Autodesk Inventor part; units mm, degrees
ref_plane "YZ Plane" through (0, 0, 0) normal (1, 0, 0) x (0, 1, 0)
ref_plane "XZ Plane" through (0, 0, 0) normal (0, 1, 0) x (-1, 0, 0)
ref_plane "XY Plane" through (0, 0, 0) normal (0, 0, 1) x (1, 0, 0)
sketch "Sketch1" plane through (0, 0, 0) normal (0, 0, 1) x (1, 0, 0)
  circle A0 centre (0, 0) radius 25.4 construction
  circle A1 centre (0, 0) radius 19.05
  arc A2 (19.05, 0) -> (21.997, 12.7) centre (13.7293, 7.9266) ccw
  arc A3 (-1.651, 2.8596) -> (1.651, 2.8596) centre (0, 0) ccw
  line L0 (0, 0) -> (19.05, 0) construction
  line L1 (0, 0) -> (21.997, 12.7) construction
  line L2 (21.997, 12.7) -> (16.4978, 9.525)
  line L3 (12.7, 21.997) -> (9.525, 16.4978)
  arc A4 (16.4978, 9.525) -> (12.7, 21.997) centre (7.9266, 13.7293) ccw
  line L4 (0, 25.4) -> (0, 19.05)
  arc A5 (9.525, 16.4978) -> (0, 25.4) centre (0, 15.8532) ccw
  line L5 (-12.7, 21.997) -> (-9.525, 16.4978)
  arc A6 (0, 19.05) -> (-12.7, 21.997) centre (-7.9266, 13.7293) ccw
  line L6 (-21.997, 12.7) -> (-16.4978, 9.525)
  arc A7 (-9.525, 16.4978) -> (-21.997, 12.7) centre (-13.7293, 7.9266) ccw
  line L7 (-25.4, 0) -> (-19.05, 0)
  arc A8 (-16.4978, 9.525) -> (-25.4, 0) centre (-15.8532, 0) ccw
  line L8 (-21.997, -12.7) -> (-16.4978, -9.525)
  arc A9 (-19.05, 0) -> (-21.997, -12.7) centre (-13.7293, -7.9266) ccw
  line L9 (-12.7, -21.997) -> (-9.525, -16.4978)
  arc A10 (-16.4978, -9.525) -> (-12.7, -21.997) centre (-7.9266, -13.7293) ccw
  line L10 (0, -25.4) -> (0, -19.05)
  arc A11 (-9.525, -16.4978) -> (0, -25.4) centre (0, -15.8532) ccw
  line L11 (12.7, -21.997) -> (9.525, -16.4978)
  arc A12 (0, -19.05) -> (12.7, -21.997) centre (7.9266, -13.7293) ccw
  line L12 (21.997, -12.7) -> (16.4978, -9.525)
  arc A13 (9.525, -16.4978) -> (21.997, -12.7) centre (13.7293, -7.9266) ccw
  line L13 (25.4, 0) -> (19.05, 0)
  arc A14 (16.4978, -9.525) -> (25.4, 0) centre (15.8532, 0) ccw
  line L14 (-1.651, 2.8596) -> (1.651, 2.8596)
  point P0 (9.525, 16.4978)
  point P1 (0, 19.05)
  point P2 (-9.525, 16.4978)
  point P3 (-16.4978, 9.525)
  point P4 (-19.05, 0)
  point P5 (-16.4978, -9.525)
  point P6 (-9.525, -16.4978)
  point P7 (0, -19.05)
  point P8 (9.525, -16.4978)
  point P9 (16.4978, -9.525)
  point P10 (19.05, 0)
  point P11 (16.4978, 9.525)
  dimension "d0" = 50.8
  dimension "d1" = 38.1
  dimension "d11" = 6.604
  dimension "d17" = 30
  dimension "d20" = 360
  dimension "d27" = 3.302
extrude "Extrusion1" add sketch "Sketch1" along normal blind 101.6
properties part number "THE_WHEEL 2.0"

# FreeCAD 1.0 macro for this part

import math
import FreeCAD as App
import Part
import Sketcher

V = App.Vector
Q = App.Units.Quantity

doc = App.newDocument("Part")
body = doc.addObject("PartDesign::Body", "Body")

# Sketch on XY plane
sketch1 = body.newObject("Sketcher::SketchObject", "Sketch")
sketch1.AttachmentSupport = (doc.getObject("XY_Plane"), [""])
sketch1.MapMode = "FlatFace"
sketch1.addGeometry([
    Part.LineSegment(V(25.4, 0, 0), V(19.05, 0, 0)),  # 0
    Part.ArcOfCircle(Part.Circle(V(13.7293, 7.9266, 0), V(0, 0, 1), 9.546771), math.radians(-56.128664), math.radians(30.000214)),  # 1
    Part.LineSegment(V(21.997, 12.7, 0), V(16.4978, 9.525, 0)),  # 2
    Part.ArcOfCircle(Part.Circle(V(7.9266, 13.7293, 0), V(0, 0, 1), 9.546811), math.radians(-26.128632), math.radians(59.999786)),  # 3
    Part.LineSegment(V(12.7, 21.997, 0), V(9.525, 16.4978, 0)),  # 4
    Part.ArcOfCircle(Part.Circle(V(0, 15.8532, 0), V(0, 0, 1), 9.546787), math.radians(3.871562), math.radians(90)),  # 5
    Part.LineSegment(V(0, 25.4, 0), V(0, 19.05, 0)),  # 6
    Part.ArcOfCircle(Part.Circle(V(-7.9266, 13.7293, 0), V(0, 0, 1), 9.546771), math.radians(33.871336), math.radians(120.000214)),  # 7
    Part.LineSegment(V(-12.7, 21.997, 0), V(-9.525, 16.4978, 0)),  # 8
    Part.ArcOfCircle(Part.Circle(V(-13.7293, 7.9266, 0), V(0, 0, 1), 9.546811), math.radians(63.871368), math.radians(149.999786)),  # 9
    Part.LineSegment(V(-21.997, 12.7, 0), V(-16.4978, 9.525, 0)),  # 10
    Part.ArcOfCircle(Part.Circle(V(-15.8532, 0, 0), V(0, 0, 1), 9.546787), math.radians(93.871562), math.radians(180)),  # 11
    Part.LineSegment(V(-25.4, 0, 0), V(-19.05, 0, 0)),  # 12
    Part.ArcOfCircle(Part.Circle(V(-13.7293, -7.9266, 0), V(0, 0, 1), 9.546771), math.radians(123.871336), math.radians(210.000214)),  # 13
    Part.LineSegment(V(-21.997, -12.7, 0), V(-16.4978, -9.525, 0)),  # 14
    Part.ArcOfCircle(Part.Circle(V(-7.9266, -13.7293, 0), V(0, 0, 1), 9.546811), math.radians(153.871368), math.radians(239.999786)),  # 15
    Part.LineSegment(V(-12.7, -21.997, 0), V(-9.525, -16.4978, 0)),  # 16
    Part.ArcOfCircle(Part.Circle(V(0, -15.8532, 0), V(0, 0, 1), 9.546787), math.radians(-176.128438), math.radians(-90)),  # 17
    Part.LineSegment(V(0, -25.4, 0), V(0, -19.05, 0)),  # 18
    Part.ArcOfCircle(Part.Circle(V(7.9266, -13.7293, 0), V(0, 0, 1), 9.546771), math.radians(-146.128664), math.radians(-59.999786)),  # 19
    Part.LineSegment(V(12.7, -21.997, 0), V(9.525, -16.4978, 0)),  # 20
    Part.ArcOfCircle(Part.Circle(V(13.7293, -7.9266, 0), V(0, 0, 1), 9.546811), math.radians(-116.128632), math.radians(-30.000214)),  # 21
    Part.LineSegment(V(21.997, -12.7, 0), V(16.4978, -9.525, 0)),  # 22
    Part.ArcOfCircle(Part.Circle(V(15.8532, 0, 0), V(0, 0, 1), 9.546787), math.radians(-86.128438), math.radians(0)),  # 23
    Part.ArcOfCircle(Part.Circle(V(0, 0, 0), V(0, 0, 1), 3.301986), math.radians(120.000138), math.radians(419.999862)),  # 24
    Part.LineSegment(V(-1.651, 2.8596, 0), V(1.651, 2.8596, 0)),  # 25
], False)
sketch1.addConstraint([
    Sketcher.Constraint("Coincident", 0, 2, 1, 1),
    Sketcher.Constraint("Coincident", 1, 2, 2, 1),
    Sketcher.Constraint("Coincident", 2, 2, 3, 1),
    Sketcher.Constraint("Coincident", 3, 2, 4, 1),
    Sketcher.Constraint("Coincident", 4, 2, 5, 1),
    Sketcher.Constraint("Coincident", 5, 2, 6, 1),
    Sketcher.Constraint("Coincident", 6, 2, 7, 1),
    Sketcher.Constraint("Coincident", 7, 2, 8, 1),
    Sketcher.Constraint("Coincident", 8, 2, 9, 1),
    Sketcher.Constraint("Coincident", 9, 2, 10, 1),
    Sketcher.Constraint("Coincident", 10, 2, 11, 1),
    Sketcher.Constraint("Coincident", 11, 2, 12, 1),
    Sketcher.Constraint("Coincident", 12, 2, 13, 1),
    Sketcher.Constraint("Coincident", 13, 2, 14, 1),
    Sketcher.Constraint("Coincident", 14, 2, 15, 1),
    Sketcher.Constraint("Coincident", 15, 2, 16, 1),
    Sketcher.Constraint("Coincident", 16, 2, 17, 1),
    Sketcher.Constraint("Coincident", 17, 2, 18, 1),
    Sketcher.Constraint("Coincident", 18, 2, 19, 1),
    Sketcher.Constraint("Coincident", 19, 2, 20, 1),
    Sketcher.Constraint("Coincident", 20, 2, 21, 1),
    Sketcher.Constraint("Coincident", 21, 2, 22, 1),
    Sketcher.Constraint("Coincident", 22, 2, 23, 1),
    Sketcher.Constraint("Coincident", 23, 2, 0, 1),
    Sketcher.Constraint("Coincident", 24, 1, 25, 1),
    Sketcher.Constraint("Coincident", 25, 2, 24, 2),
    Sketcher.Constraint("Horizontal", 0),
    Sketcher.Constraint("Vertical", 6),
    Sketcher.Constraint("Horizontal", 12),
    Sketcher.Constraint("Vertical", 18),
    Sketcher.Constraint("Horizontal", 25),
    Sketcher.Constraint("Coincident", 24, 3, -1, 1),
    Sketcher.Constraint("Equal", 1, 3),
    Sketcher.Constraint("Equal", 3, 5),
    Sketcher.Constraint("Equal", 5, 7),
    Sketcher.Constraint("Equal", 7, 9),
    Sketcher.Constraint("Equal", 9, 11),
    Sketcher.Constraint("Equal", 11, 13),
    Sketcher.Constraint("Equal", 13, 15),
    Sketcher.Constraint("Equal", 15, 17),
    Sketcher.Constraint("Equal", 17, 19),
    Sketcher.Constraint("Equal", 19, 21),
    Sketcher.Constraint("Equal", 21, 23),
    Sketcher.Constraint("Symmetric", 1, 3, 13, 3, -1, 1),
    Sketcher.Constraint("Symmetric", 3, 3, 15, 3, -1, 1),
    Sketcher.Constraint("Symmetric", 5, 3, 17, 3, -1, 1),
    Sketcher.Constraint("Symmetric", 7, 3, 19, 3, -1, 1),
    Sketcher.Constraint("Symmetric", 9, 3, 21, 3, -1, 1),
    Sketcher.Constraint("Symmetric", 11, 3, 23, 3, -1, 1),
    Sketcher.Constraint("Symmetric", 3, 3, 7, 3, -2),
    Sketcher.Constraint("Symmetric", 1, 3, 9, 3, -2),
    Sketcher.Constraint("Symmetric", 4, 2, 8, 2, -2),
    Sketcher.Constraint("Symmetric", 2, 2, 10, 2, -2),
    Sketcher.Constraint("Symmetric", 0, 2, 12, 2, -2),
    Sketcher.Constraint("Symmetric", 16, 2, 20, 2, -2),
    Sketcher.Constraint("Symmetric", 14, 2, 22, 2, -2),
    Sketcher.Constraint("Symmetric", 6, 2, 18, 2, -1),
    Sketcher.Constraint("PointOnObject", 5, 3, -2),
    Sketcher.Constraint("PointOnObject", 11, 3, -1),
    Sketcher.Constraint("Perpendicular", 2, 8),
    Sketcher.Constraint("Perpendicular", 4, 10),
    Sketcher.Constraint("Perpendicular", 8, 14),
    Sketcher.Constraint("Perpendicular", 10, 16),
    Sketcher.Constraint("Perpendicular", 14, 20),
    Sketcher.Constraint("Perpendicular", 16, 22),
    Sketcher.Constraint("Horizontal", 3, 2, 7, 2),
    Sketcher.Constraint("Equal", 12, 6),
    Sketcher.Constraint("Equal", 2, 4),
    Sketcher.Constraint("Radius", 24, Q("0.13 in")),
    Sketcher.Constraint("Angle", 10, Q("-30.0003 deg")),
    Sketcher.Constraint("DistanceX", 25, 1, 25, 2, Q("0.13 in")),
    Sketcher.Constraint("DistanceY", -1, 1, 5, 2, Q("1 in")),
    Sketcher.Constraint("DistanceX", 11, 2, -1, 1, Q("1 in")),
    Sketcher.Constraint("DistanceX", 0, 2, 0, 1, Q("0.25 in")),
    Sketcher.Constraint("DistanceY", -1, 1, 1, 2, Q("0.5 in")),
    Sketcher.Constraint("Distance", 2, Q("0.25 in")),
])
pad1 = body.newObject("PartDesign::Pad", "Pad")
pad1.Profile = sketch1
pad1.Length = Q("4 in")

doc.recompute()
